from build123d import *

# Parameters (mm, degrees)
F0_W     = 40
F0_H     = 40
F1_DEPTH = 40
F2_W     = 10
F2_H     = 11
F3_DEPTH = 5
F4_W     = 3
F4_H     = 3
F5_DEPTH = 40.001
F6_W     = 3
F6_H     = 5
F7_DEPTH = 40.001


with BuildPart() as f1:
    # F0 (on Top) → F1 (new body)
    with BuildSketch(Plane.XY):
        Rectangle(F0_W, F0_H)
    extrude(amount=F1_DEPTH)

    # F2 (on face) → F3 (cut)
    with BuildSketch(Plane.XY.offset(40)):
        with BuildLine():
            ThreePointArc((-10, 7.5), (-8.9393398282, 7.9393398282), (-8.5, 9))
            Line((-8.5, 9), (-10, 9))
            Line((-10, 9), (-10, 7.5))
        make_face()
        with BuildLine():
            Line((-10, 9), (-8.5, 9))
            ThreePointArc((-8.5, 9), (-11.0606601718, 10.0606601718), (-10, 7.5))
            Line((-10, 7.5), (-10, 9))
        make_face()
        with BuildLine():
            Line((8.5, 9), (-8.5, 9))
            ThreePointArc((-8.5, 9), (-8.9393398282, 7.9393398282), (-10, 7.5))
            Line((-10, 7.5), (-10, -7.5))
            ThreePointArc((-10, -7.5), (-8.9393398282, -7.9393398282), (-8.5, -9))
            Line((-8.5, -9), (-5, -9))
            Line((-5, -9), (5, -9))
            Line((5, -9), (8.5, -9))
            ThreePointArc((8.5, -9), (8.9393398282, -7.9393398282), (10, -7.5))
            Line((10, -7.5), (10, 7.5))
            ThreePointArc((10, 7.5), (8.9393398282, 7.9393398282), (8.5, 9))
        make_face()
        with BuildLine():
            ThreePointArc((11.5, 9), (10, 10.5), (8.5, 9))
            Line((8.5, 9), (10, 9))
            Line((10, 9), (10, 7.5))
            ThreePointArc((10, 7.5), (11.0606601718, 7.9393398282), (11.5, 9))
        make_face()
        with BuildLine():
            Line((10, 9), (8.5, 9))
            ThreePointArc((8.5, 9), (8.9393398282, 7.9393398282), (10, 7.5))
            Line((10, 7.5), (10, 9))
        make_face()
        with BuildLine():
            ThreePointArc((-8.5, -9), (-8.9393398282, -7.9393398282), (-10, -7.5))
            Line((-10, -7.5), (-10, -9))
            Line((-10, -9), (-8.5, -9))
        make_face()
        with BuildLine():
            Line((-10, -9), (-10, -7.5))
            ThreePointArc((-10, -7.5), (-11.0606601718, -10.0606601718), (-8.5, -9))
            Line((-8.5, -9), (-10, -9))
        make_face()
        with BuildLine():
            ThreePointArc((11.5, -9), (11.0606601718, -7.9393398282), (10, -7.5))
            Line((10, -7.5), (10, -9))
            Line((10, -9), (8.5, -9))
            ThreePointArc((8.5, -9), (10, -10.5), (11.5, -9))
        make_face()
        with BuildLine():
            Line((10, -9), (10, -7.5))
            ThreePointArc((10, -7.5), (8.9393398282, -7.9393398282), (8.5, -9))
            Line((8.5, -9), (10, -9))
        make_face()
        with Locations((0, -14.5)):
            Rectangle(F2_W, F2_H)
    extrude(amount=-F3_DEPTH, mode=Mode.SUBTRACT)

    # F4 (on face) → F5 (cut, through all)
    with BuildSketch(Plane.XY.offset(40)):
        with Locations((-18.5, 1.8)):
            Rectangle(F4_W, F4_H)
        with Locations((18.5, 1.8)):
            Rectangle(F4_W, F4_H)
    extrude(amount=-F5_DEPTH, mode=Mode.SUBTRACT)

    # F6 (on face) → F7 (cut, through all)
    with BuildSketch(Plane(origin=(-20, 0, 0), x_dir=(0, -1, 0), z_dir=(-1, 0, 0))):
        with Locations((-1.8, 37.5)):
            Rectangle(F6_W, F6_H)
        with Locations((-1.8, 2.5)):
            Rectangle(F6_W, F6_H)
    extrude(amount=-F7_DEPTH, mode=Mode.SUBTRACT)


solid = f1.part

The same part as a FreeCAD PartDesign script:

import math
import FreeCAD as App
import Part
import Sketcher

doc = App.newDocument("Part")
body = doc.addObject("PartDesign::Body", "Body")

sketch1 = doc.addObject("Sketcher::SketchObject", "Sketch")
body.addObject(sketch1)
sketch1.AttachmentSupport = (doc.XY_Plane, [""])
sketch1.MapMode = "FlatFace"
sketch1.addGeometry(Part.LineSegment(App.Vector(-20, 20, 0), App.Vector(-20, -20, 0)), False)
sketch1.addGeometry(Part.LineSegment(App.Vector(-20, -20, 0), App.Vector(20, -20, 0)), False)
sketch1.addGeometry(Part.LineSegment(App.Vector(20, -20, 0), App.Vector(20, 20, 0)), False)
sketch1.addGeometry(Part.LineSegment(App.Vector(20, 20, 0), App.Vector(-20, 20, 0)), False)
sketch1.addConstraint(Sketcher.Constraint("Coincident", 0, 2, 1, 1))
sketch1.addConstraint(Sketcher.Constraint("Coincident", 1, 2, 2, 1))
sketch1.addConstraint(Sketcher.Constraint("Coincident", 2, 2, 3, 1))
sketch1.addConstraint(Sketcher.Constraint("Coincident", 3, 2, 0, 1))
sketch1.addConstraint(Sketcher.Constraint("Vertical", 0))
sketch1.addConstraint(Sketcher.Constraint("Horizontal", 1))
sketch1.addConstraint(Sketcher.Constraint("Vertical", 2))
sketch1.addConstraint(Sketcher.Constraint("Horizontal", 3))
sketch1.addConstraint(Sketcher.Constraint("Symmetric", 0, 2, 2, 2, -1, 1))
sketch1.addConstraint(Sketcher.Constraint("Equal", 3, 0))
sketch1.addConstraint(Sketcher.Constraint("DistanceX", 1, 1, 1, 2, 40.0))
pad1 = doc.addObject("PartDesign::Pad", "Pad")
body.addObject(pad1)
pad1.Profile = sketch1
pad1.Length = 40

sketch2 = doc.addObject("Sketcher::SketchObject", "Sketch001")
body.addObject(sketch2)
sketch2.AttachmentSupport = (doc.XY_Plane, [""])
sketch2.MapMode = "FlatFace"
sketch2.AttachmentOffset = App.Placement(App.Vector(0, 0, 40), App.Rotation())
sketch2.addGeometry(Part.ArcOfCircle(Part.Circle(App.Vector(-10, 9, 0), App.Vector(0, 0, 1), 1.5), math.radians(0), math.radians(270)), False)
sketch2.addGeometry(Part.LineSegment(App.Vector(-10, 7.5, 0), App.Vector(-10, -7.5, 0)), False)
sketch2.addGeometry(Part.ArcOfCircle(Part.Circle(App.Vector(-10, -9, 0), App.Vector(0, 0, 1), 1.5), math.radians(90), math.radians(360)), False)
sketch2.addGeometry(Part.LineSegment(App.Vector(-8.5, -9, 0), App.Vector(-5, -9, 0)), False)
sketch2.addGeometry(Part.LineSegment(App.Vector(-5, -9, 0), App.Vector(-5, -20, 0)), False)
sketch2.addGeometry(Part.LineSegment(App.Vector(-5, -20, 0), App.Vector(5, -20, 0)), False)
sketch2.addGeometry(Part.LineSegment(App.Vector(5, -20, 0), App.Vector(5, -9, 0)), False)
sketch2.addGeometry(Part.LineSegment(App.Vector(5, -9, 0), App.Vector(8.5, -9, 0)), False)
sketch2.addGeometry(Part.ArcOfCircle(Part.Circle(App.Vector(10, -9, 0), App.Vector(0, 0, 1), 1.5), math.radians(180), math.radians(360)), False)
sketch2.addGeometry(Part.ArcOfCircle(Part.Circle(App.Vector(10, -9, 0), App.Vector(0, 0, 1), 1.5), math.radians(0), math.radians(90)), False)
sketch2.addGeometry(Part.LineSegment(App.Vector(10, -7.5, 0), App.Vector(10, 7.5, 0)), False)
sketch2.addGeometry(Part.ArcOfCircle(Part.Circle(App.Vector(10, 9, 0), App.Vector(0, 0, 1), 1.5), math.radians(-90), math.radians(0)), False)
sketch2.addGeometry(Part.ArcOfCircle(Part.Circle(App.Vector(10, 9, 0), App.Vector(0, 0, 1), 1.5), math.radians(0), math.radians(180)), False)
sketch2.addGeometry(Part.LineSegment(App.Vector(8.5, 9, 0), App.Vector(-8.5, 9, 0)), False)
sketch2.addConstraint(Sketcher.Constraint("Coincident", 0, 2, 1, 1))
sketch2.addConstraint(Sketcher.Constraint("Coincident", 1, 2, 2, 1))
sketch2.addConstraint(Sketcher.Constraint("Coincident", 2, 2, 3, 1))
sketch2.addConstraint(Sketcher.Constraint("Coincident", 3, 2, 4, 1))
sketch2.addConstraint(Sketcher.Constraint("Coincident", 4, 2, 5, 1))
sketch2.addConstraint(Sketcher.Constraint("Coincident", 5, 2, 6, 1))
sketch2.addConstraint(Sketcher.Constraint("Coincident", 6, 2, 7, 1))
sketch2.addConstraint(Sketcher.Constraint("Coincident", 7, 2, 8, 1))
sketch2.addConstraint(Sketcher.Constraint("Tangent", 8, 2, 9, 1))
sketch2.addConstraint(Sketcher.Constraint("Coincident", 9, 2, 10, 1))
sketch2.addConstraint(Sketcher.Constraint("Coincident", 10, 2, 11, 1))
sketch2.addConstraint(Sketcher.Constraint("Tangent", 11, 2, 12, 1))
sketch2.addConstraint(Sketcher.Constraint("Coincident", 12, 2, 13, 1))
sketch2.addConstraint(Sketcher.Constraint("Coincident", 13, 2, 0, 1))
sketch2.addConstraint(Sketcher.Constraint("Vertical", 1))
sketch2.addConstraint(Sketcher.Constraint("Horizontal", 3))
sketch2.addConstraint(Sketcher.Constraint("Vertical", 4))
sketch2.addConstraint(Sketcher.Constraint("Horizontal", 5))
sketch2.addConstraint(Sketcher.Constraint("Vertical", 6))
sketch2.addConstraint(Sketcher.Constraint("Horizontal", 7))
sketch2.addConstraint(Sketcher.Constraint("Vertical", 10))
sketch2.addConstraint(Sketcher.Constraint("Horizontal", 13))
sketch2.addConstraint(Sketcher.Constraint("Equal", 0, 2))
sketch2.addConstraint(Sketcher.Constraint("Equal", 2, 8))
sketch2.addConstraint(Sketcher.Constraint("Equal", 8, 9))
sketch2.addConstraint(Sketcher.Constraint("Equal", 9, 11))
sketch2.addConstraint(Sketcher.Constraint("Equal", 11, 12))
sketch2.addConstraint(Sketcher.Constraint("Symmetric", 0, 3, 8, 3, -1, 1))
sketch2.addConstraint(Sketcher.Constraint("Symmetric", 2, 3, 11, 3, -1, 1))
sketch2.addConstraint(Sketcher.Constraint("Symmetric", 2, 3, 8, 3, -2))
sketch2.addConstraint(Sketcher.Constraint("Symmetric", 3, 2, 6, 2, -2))
sketch2.addConstraint(Sketcher.Constraint("Horizontal", 9, 3, 2, 2))
sketch2.addConstraint(Sketcher.Constraint("Horizontal", 7, 2, 8, 2))
sketch2.addConstraint(Sketcher.Constraint("Horizontal", 12, 3, 11, 2))
sketch2.addConstraint(Sketcher.Constraint("Horizontal", 11, 2, 12, 2))
sketch2.addConstraint(Sketcher.Constraint("Vertical", 2, 3, 0, 2))
sketch2.addConstraint(Sketcher.Constraint("Vertical", 12, 3, 9, 2))
sketch2.addConstraint(Sketcher.Constraint("Radius", 0, 1.5))
sketch2.addConstraint(Sketcher.Constraint("DistanceX", 5, 1, 5, 2, 10.0))
sketch2.addConstraint(Sketcher.Constraint("DistanceX", 13, 2, 13, 1, 17.0))
sketch2.addConstraint(Sketcher.Constraint("DistanceY", 1, 2, 1, 1, 15.0))
sketch2.addConstraint(Sketcher.Constraint("DistanceY", 4, 2, 4, 1, 11.0))
pocket1 = doc.addObject("PartDesign::Pocket", "Pocket")
body.addObject(pocket1)
pocket1.Profile = sketch2
pocket1.Length = 5

sketch3 = doc.addObject("Sketcher::SketchObject", "Sketch002")
body.addObject(sketch3)
sketch3.AttachmentSupport = (doc.XY_Plane, [""])
sketch3.MapMode = "FlatFace"
sketch3.AttachmentOffset = App.Placement(App.Vector(0, 0, 40), App.Rotation())
sketch3.addGeometry(Part.LineSegment(App.Vector(-20, 3.3, 0), App.Vector(-20, 0.3, 0)), False)
sketch3.addGeometry(Part.LineSegment(App.Vector(-20, 0.3, 0), App.Vector(-17, 0.3, 0)), False)
sketch3.addGeometry(Part.LineSegment(App.Vector(-17, 0.3, 0), App.Vector(-17, 3.3, 0)), False)
sketch3.addGeometry(Part.LineSegment(App.Vector(-17, 3.3, 0), App.Vector(-20, 3.3, 0)), False)
sketch3.addGeometry(Part.LineSegment(App.Vector(17, 3.3, 0), App.Vector(17, 0.3, 0)), False)
sketch3.addGeometry(Part.LineSegment(App.Vector(17, 0.3, 0), App.Vector(20, 0.3, 0)), False)
sketch3.addGeometry(Part.LineSegment(App.Vector(20, 0.3, 0), App.Vector(20, 3.3, 0)), False)
sketch3.addGeometry(Part.LineSegment(App.Vector(20, 3.3, 0), App.Vector(17, 3.3, 0)), False)
sketch3.addConstraint(Sketcher.Constraint("Coincident", 0, 2, 1, 1))
sketch3.addConstraint(Sketcher.Constraint("Coincident", 1, 2, 2, 1))
sketch3.addConstraint(Sketcher.Constraint("Coincident", 2, 2, 3, 1))
sketch3.addConstraint(Sketcher.Constraint("Coincident", 3, 2, 0, 1))
sketch3.addConstraint(Sketcher.Constraint("Coincident", 4, 2, 5, 1))
sketch3.addConstraint(Sketcher.Constraint("Coincident", 5, 2, 6, 1))
sketch3.addConstraint(Sketcher.Constraint("Coincident", 6, 2, 7, 1))
sketch3.addConstraint(Sketcher.Constraint("Coincident", 7, 2, 4, 1))
sketch3.addConstraint(Sketcher.Constraint("Vertical", 0))
sketch3.addConstraint(Sketcher.Constraint("Horizontal", 1))
sketch3.addConstraint(Sketcher.Constraint("Vertical", 2))
sketch3.addConstraint(Sketcher.Constraint("Horizontal", 3))
sketch3.addConstraint(Sketcher.Constraint("Vertical", 4))
sketch3.addConstraint(Sketcher.Constraint("Horizontal", 5))
sketch3.addConstraint(Sketcher.Constraint("Vertical", 6))
sketch3.addConstraint(Sketcher.Constraint("Horizontal", 7))
sketch3.addConstraint(Sketcher.Constraint("Symmetric", 1, 2, 4, 2, -2))
sketch3.addConstraint(Sketcher.Constraint("Symmetric", 3, 2, 6, 2, -2))
sketch3.addConstraint(Sketcher.Constraint("Equal", 7, 0))
sketch3.addConstraint(Sketcher.Constraint("DistanceX", 1, 1, 1, 2, 3.0))
sketch3.addConstraint(Sketcher.Constraint("DistanceX", 0, 2, -1, 1, 20.0))
sketch3.addConstraint(Sketcher.Constraint("DistanceY", -1, 1, 0, 2, 0.3))
pocket2 = doc.addObject("PartDesign::Pocket", "Pocket001")
body.addObject(pocket2)
pocket2.Profile = sketch3
pocket2.Type = "ThroughAll"

sketch4 = doc.addObject("Sketcher::SketchObject", "Sketch003")
body.addObject(sketch4)
sketch4.AttachmentSupport = (doc.YZ_Plane, [""])
sketch4.MapMode = "FlatFace"
sketch4.AttachmentOffset = App.Placement(App.Vector(0, 0, -20), App.Rotation())
sketch4.addGeometry(Part.LineSegment(App.Vector(3.3, 40, 0), App.Vector(3.3, 35, 0)), False)
sketch4.addGeometry(Part.LineSegment(App.Vector(3.3, 35, 0), App.Vector(0.3, 35, 0)), False)
sketch4.addGeometry(Part.LineSegment(App.Vector(0.3, 35, 0), App.Vector(0.3, 40, 0)), False)
sketch4.addGeometry(Part.LineSegment(App.Vector(0.3, 40, 0), App.Vector(3.3, 40, 0)), False)
sketch4.addGeometry(Part.LineSegment(App.Vector(3.3, 5, 0), App.Vector(3.3, 0, 0)), False)
sketch4.addGeometry(Part.LineSegment(App.Vector(3.3, 0, 0), App.Vector(0.3, 0, 0)), False)
sketch4.addGeometry(Part.LineSegment(App.Vector(0.3, 0, 0), App.Vector(0.3, 5, 0)), False)
sketch4.addGeometry(Part.LineSegment(App.Vector(0.3, 5, 0), App.Vector(3.3, 5, 0)), False)
sketch4.addConstraint(Sketcher.Constraint("Coincident", 0, 2, 1, 1))
sketch4.addConstraint(Sketcher.Constraint("Coincident", 1, 2, 2, 1))
sketch4.addConstraint(Sketcher.Constraint("Coincident", 2, 2, 3, 1))
sketch4.addConstraint(Sketcher.Constraint("Coincident", 3, 2, 0, 1))
sketch4.addConstraint(Sketcher.Constraint("Coincident", 4, 2, 5, 1))
sketch4.addConstraint(Sketcher.Constraint("Coincident", 5, 2, 6, 1))
sketch4.addConstraint(Sketcher.Constraint("Coincident", 6, 2, 7, 1))
sketch4.addConstraint(Sketcher.Constraint("Coincident", 7, 2, 4, 1))
sketch4.addConstraint(Sketcher.Constraint("Vertical", 0))
sketch4.addConstraint(Sketcher.Constraint("Horizontal", 1))
sketch4.addConstraint(Sketcher.Constraint("Vertical", 2))
sketch4.addConstraint(Sketcher.Constraint("Horizontal", 3))
sketch4.addConstraint(Sketcher.Constraint("Vertical", 4))
sketch4.addConstraint(Sketcher.Constraint("Horizontal", 5))
sketch4.addConstraint(Sketcher.Constraint("Vertical", 6))
sketch4.addConstraint(Sketcher.Constraint("Horizontal", 7))
sketch4.addConstraint(Sketcher.Constraint("PointOnObject", 4, 2, -1))
sketch4.addConstraint(Sketcher.Constraint("Vertical", 3, 2, 4, 2))
sketch4.addConstraint(Sketcher.Constraint("Vertical", 2, 2, 5, 2))
sketch4.addConstraint(Sketcher.Constraint("Equal", 2, 4))
sketch4.addConstraint(Sketcher.Constraint("DistanceX", 1, 2, 1, 1, 3.0))
sketch4.addConstraint(Sketcher.Constraint("DistanceY", 0, 2, 0, 1, 5.0))
sketch4.addConstraint(Sketcher.Constraint("DistanceY", -1, 1, 0, 2, 35.0))
sketch4.addConstraint(Sketcher.Constraint("DistanceX", -1, 1, 0, 2, 3.3))
pocket3 = doc.addObject("PartDesign::Pocket", "Pocket002")
body.addObject(pocket3)
pocket3.Profile = sketch4
pocket3.Type = "ThroughAll"
pocket3.Reversed = True

doc.recompute()
